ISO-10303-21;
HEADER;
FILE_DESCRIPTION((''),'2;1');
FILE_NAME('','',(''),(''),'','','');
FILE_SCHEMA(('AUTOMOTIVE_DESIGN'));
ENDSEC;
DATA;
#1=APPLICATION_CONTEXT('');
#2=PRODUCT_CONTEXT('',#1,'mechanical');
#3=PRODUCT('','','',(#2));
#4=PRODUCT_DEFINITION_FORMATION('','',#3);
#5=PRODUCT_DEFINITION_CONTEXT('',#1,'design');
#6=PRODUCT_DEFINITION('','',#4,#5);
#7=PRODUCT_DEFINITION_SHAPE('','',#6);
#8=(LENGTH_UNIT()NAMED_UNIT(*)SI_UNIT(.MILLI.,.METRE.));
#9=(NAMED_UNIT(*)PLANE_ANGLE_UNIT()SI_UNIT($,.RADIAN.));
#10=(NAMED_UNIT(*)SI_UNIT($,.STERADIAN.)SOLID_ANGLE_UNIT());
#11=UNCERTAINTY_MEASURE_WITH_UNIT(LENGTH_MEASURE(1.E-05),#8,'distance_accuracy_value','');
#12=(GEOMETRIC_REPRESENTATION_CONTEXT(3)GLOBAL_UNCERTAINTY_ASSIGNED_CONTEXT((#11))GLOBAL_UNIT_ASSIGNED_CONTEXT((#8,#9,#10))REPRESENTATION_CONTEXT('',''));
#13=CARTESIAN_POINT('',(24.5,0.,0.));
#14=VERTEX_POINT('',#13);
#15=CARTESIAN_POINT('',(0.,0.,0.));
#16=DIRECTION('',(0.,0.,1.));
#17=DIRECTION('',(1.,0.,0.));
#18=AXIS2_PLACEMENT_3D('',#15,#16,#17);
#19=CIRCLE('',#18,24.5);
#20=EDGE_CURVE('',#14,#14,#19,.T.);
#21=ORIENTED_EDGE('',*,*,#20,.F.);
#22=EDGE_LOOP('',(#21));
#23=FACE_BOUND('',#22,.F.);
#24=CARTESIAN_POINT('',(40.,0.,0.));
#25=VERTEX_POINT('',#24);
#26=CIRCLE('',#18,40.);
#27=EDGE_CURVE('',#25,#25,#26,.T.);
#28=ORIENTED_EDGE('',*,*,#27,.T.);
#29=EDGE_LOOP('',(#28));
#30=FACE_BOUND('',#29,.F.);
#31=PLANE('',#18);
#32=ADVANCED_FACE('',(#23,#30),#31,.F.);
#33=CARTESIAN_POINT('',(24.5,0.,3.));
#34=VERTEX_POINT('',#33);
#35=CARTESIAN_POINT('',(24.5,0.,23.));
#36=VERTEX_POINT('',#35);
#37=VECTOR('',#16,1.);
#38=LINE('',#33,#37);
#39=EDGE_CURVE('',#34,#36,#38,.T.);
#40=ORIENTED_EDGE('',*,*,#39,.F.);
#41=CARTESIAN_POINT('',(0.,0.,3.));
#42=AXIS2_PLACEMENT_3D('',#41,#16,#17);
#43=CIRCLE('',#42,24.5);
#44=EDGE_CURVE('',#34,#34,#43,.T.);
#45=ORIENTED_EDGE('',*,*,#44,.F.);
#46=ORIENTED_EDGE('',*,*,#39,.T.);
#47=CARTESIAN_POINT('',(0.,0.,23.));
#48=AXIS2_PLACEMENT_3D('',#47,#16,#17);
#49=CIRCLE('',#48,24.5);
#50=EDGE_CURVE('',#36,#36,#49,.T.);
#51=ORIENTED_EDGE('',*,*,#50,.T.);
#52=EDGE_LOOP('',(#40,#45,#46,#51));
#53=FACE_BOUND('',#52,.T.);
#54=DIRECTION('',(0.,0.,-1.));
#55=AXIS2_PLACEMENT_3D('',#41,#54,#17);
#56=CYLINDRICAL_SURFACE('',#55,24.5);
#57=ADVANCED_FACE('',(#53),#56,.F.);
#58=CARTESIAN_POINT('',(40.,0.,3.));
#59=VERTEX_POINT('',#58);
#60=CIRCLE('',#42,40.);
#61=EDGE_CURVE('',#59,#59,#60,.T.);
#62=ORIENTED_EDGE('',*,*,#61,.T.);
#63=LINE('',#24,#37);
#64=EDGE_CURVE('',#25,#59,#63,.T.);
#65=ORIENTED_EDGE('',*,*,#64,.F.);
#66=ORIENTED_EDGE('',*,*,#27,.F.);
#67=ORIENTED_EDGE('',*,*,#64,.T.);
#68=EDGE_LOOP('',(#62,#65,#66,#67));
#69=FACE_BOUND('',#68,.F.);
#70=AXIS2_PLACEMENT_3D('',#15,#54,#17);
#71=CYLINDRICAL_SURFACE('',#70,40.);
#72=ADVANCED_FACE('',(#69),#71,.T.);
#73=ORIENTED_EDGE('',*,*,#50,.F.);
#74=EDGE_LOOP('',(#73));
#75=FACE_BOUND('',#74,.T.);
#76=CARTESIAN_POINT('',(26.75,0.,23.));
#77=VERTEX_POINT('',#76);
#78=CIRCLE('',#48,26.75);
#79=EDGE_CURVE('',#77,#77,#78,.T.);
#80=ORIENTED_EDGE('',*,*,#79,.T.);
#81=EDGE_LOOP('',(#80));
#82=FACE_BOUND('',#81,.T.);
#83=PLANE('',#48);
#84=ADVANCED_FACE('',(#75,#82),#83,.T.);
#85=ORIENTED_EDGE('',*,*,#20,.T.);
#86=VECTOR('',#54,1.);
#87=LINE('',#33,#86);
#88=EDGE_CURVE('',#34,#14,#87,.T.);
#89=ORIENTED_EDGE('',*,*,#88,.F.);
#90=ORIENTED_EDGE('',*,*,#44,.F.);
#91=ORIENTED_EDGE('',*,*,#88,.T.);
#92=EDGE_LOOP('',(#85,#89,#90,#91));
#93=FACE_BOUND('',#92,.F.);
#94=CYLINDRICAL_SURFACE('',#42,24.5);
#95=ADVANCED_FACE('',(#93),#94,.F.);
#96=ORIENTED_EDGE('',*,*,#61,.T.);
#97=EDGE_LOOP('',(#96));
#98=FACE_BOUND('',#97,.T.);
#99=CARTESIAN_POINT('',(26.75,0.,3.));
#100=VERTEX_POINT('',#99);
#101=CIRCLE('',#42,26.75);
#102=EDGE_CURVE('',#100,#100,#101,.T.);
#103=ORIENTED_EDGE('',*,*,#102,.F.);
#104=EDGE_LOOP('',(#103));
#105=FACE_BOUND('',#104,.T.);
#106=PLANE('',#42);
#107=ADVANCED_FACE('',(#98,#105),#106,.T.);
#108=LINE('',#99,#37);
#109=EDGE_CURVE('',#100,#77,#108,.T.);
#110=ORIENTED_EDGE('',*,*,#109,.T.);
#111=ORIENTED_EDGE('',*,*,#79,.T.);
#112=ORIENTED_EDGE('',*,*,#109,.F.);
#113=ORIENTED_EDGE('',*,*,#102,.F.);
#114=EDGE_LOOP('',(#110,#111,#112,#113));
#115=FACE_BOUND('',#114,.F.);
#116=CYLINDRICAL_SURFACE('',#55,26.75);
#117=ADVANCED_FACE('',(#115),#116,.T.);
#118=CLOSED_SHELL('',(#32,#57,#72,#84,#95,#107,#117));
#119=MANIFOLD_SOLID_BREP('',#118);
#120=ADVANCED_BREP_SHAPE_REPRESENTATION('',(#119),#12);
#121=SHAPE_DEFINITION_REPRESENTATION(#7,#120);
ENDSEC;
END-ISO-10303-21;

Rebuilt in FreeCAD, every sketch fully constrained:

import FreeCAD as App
import Part
import Sketcher
from FreeCAD import Vector

doc = App.newDocument("Part")
body = doc.addObject("PartDesign::Body", "Body")

# Sketch on XY plane
sketch1 = body.newObject("Sketcher::SketchObject", "Sketch")
sketch1.AttachmentSupport = (doc.getObject("XY_Plane"), [""])
sketch1.MapMode = "FlatFace"
sketch1.addGeometry(Part.Circle(Vector(0, 0, 0), Vector(0, 0, 1), 40), False)
sketch1.addConstraint([
    Sketcher.Constraint("Coincident", 0, 3, -1, 1),
    Sketcher.Constraint("Diameter", 0, 80.0),
])
pad1 = body.newObject("PartDesign::Pad", "Pad")
pad1.Profile = sketch1
pad1.Length = 3

# Sketch on XY plane
sketch2 = body.newObject("Sketcher::SketchObject", "Sketch001")
sketch2.AttachmentSupport = (doc.getObject("XY_Plane"), [""])
sketch2.MapMode = "FlatFace"
sketch2.AttachmentOffset = App.Placement(Vector(0, 0, 3), App.Rotation())
sketch2.addGeometry([
    Part.Circle(Vector(0, 0, 0), Vector(0, 0, 1), 27),
    Part.Circle(Vector(0, 0, 0), Vector(0, 0, 1), 24),
], False)
sketch2.addConstraint([
    Sketcher.Constraint("Coincident", 0, 3, -1, 1),
    Sketcher.Constraint("Coincident", 1, 3, -1, 1),
    Sketcher.Constraint("Diameter", 1, 49.0),
    Sketcher.Constraint("Diameter", 0, 53.5),
])
pad2 = body.newObject("PartDesign::Pad", "Pad001")
pad2.Profile = sketch2
pad2.Length = 20

# Sketch on XY plane
sketch3 = body.newObject("Sketcher::SketchObject", "Sketch002")
sketch3.AttachmentSupport = (doc.getObject("XY_Plane"), [""])
sketch3.MapMode = "FlatFace"
sketch3.AttachmentOffset = App.Placement(Vector(0, 0, 3), App.Rotation())
sketch3.addGeometry(Part.Circle(Vector(0, 0, 0), Vector(0, 0, 1), 24), False)
sketch3.addConstraint([
    Sketcher.Constraint("Coincident", 0, 3, -1, 1),
    Sketcher.Constraint("Diameter", 0, 49.0),
])
pocket1 = body.newObject("PartDesign::Pocket", "Pocket")
pocket1.Profile = sketch3
pocket1.Type = "ThroughAll"

doc.recompute()
